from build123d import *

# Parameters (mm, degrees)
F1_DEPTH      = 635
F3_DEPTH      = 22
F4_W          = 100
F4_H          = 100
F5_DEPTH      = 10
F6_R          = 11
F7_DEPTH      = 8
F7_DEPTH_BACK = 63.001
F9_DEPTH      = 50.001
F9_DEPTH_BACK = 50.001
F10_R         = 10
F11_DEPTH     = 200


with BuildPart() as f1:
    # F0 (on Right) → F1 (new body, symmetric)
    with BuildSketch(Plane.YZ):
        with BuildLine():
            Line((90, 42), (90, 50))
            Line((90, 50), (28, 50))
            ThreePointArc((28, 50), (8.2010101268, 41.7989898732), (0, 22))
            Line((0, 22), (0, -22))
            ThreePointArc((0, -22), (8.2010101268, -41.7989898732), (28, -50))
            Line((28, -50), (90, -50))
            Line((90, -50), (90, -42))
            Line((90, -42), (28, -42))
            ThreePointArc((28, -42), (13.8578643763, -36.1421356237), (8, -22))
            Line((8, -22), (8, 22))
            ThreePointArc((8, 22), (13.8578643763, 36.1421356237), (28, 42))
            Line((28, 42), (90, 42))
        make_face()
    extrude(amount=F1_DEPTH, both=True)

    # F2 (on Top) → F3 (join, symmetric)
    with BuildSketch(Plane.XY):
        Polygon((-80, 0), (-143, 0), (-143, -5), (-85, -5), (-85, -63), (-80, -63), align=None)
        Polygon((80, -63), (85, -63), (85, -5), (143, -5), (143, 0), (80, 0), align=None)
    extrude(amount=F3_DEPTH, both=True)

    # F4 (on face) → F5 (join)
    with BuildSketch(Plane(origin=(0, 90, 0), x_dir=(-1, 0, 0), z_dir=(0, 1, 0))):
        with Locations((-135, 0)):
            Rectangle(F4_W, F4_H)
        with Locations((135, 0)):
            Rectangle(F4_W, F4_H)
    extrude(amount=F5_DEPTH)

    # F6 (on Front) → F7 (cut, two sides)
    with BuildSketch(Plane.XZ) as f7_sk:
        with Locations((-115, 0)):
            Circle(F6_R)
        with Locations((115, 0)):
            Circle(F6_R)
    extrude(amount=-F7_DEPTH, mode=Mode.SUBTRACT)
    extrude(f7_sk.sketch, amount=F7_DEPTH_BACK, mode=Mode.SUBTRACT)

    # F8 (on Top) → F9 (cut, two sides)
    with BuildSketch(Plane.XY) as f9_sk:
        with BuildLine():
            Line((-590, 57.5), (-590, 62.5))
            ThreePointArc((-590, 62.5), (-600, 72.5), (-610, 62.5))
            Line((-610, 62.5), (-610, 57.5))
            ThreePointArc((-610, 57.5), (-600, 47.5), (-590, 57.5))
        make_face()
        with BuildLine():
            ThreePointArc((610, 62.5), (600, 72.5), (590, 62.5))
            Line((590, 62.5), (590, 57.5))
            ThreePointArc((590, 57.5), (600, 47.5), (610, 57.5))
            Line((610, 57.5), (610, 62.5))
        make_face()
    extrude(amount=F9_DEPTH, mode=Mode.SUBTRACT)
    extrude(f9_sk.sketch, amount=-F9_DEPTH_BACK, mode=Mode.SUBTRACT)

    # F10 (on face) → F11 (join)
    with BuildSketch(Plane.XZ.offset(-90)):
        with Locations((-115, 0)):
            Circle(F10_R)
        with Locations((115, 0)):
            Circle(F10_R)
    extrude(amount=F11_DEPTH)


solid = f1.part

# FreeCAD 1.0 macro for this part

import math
import FreeCAD as App
import Part
import Sketcher
from FreeCAD import Vector

doc = App.newDocument("Part")
body = doc.addObject("PartDesign::Body", "Body")

# Sketch on YZ plane
sketch1 = body.newObject("Sketcher::SketchObject", "Sketch")
sketch1.AttachmentSupport = (doc.getObject("YZ_Plane"), [""])
sketch1.MapMode = "FlatFace"
sketch1.addGeometry([
    Part.LineSegment(Vector(90, 42, 0), Vector(90, 50, 0)),  # 0
    Part.LineSegment(Vector(90, 50, 0), Vector(28, 50, 0)),  # 1
    Part.ArcOfCircle(Part.Circle(Vector(28, 22, 0), Vector(0, 0, 1), 28), math.radians(90), math.radians(180)),  # 2
    Part.LineSegment(Vector(0, 22, 0), Vector(0, -22, 0)),  # 3
    Part.ArcOfCircle(Part.Circle(Vector(28, -22, 0), Vector(0, 0, 1), 28), math.radians(180), math.radians(270)),  # 4
    Part.LineSegment(Vector(28, -50, 0), Vector(90, -50, 0)),  # 5
    Part.LineSegment(Vector(90, -50, 0), Vector(90, -42, 0)),  # 6
    Part.LineSegment(Vector(90, -42, 0), Vector(28, -42, 0)),  # 7
    Part.ArcOfCircle(Part.Circle(Vector(28, -22, 0), Vector(0, 0, 1), 20), math.radians(180), math.radians(270)),  # 8
    Part.LineSegment(Vector(8, -22, 0), Vector(8, 22, 0)),  # 9
    Part.ArcOfCircle(Part.Circle(Vector(28, 22, 0), Vector(0, 0, 1), 20), math.radians(90), math.radians(180)),  # 10
    Part.LineSegment(Vector(28, 42, 0), Vector(90, 42, 0)),  # 11
], False)
sketch1.addConstraint([
    Sketcher.Constraint("Coincident", 0, 2, 1, 1),
    Sketcher.Constraint("Tangent", 1, 2, 2, 1),
    Sketcher.Constraint("Tangent", 2, 2, 3, 1),
    Sketcher.Constraint("Tangent", 3, 2, 4, 1),
    Sketcher.Constraint("Tangent", 4, 2, 5, 1),
    Sketcher.Constraint("Coincident", 5, 2, 6, 1),
    Sketcher.Constraint("Coincident", 6, 2, 7, 1),
    Sketcher.Constraint("Tangent", 7, 2, 8, 2),
    Sketcher.Constraint("Tangent", 8, 1, 9, 1),
    Sketcher.Constraint("Tangent", 9, 2, 10, 2),
    Sketcher.Constraint("Tangent", 10, 1, 11, 1),
    Sketcher.Constraint("Coincident", 11, 2, 0, 1),
    Sketcher.Constraint("Vertical", 0),
    Sketcher.Constraint("Horizontal", 1),
    Sketcher.Constraint("Vertical", 3),
    Sketcher.Constraint("Horizontal", 5),
    Sketcher.Constraint("Vertical", 6),
    Sketcher.Constraint("Horizontal", 7),
    Sketcher.Constraint("Vertical", 9),
    Sketcher.Constraint("Horizontal", 11),
    Sketcher.Constraint("Coincident", 8, 3, 4, 3),
    Sketcher.Constraint("Coincident", 10, 3, 2, 3),
    Sketcher.Constraint("Equal", 2, 4),
    Sketcher.Constraint("Symmetric", 2, 2, 3, 2, -1, 1),
    Sketcher.Constraint("Vertical", 0, 2, 5, 2),
    Sketcher.Constraint("Radius", 2, 28.0),
    Sketcher.Constraint("Radius", 8, 20.0),
    Sketcher.Constraint("DistanceX", 1, 2, 1, 1, 62.0),
    Sketcher.Constraint("DistanceY", 3, 2, 3, 1, 44.0),
])
pad1 = body.newObject("PartDesign::Pad", "Pad")
pad1.Profile = sketch1
pad1.Length = 1270
pad1.Midplane = True

# Sketch on XY plane
sketch2 = body.newObject("Sketcher::SketchObject", "Sketch001")
sketch2.AttachmentSupport = (doc.getObject("XY_Plane"), [""])
sketch2.MapMode = "FlatFace"
sketch2.addGeometry([
    Part.LineSegment(Vector(-80, 0, 0), Vector(-143, 0, 0)),  # 0
    Part.LineSegment(Vector(-143, 0, 0), Vector(-143, -5, 0)),  # 1
    Part.LineSegment(Vector(-143, -5, 0), Vector(-85, -5, 0)),  # 2
    Part.LineSegment(Vector(-85, -5, 0), Vector(-85, -63, 0)),  # 3
    Part.LineSegment(Vector(-85, -63, 0), Vector(-80, -63, 0)),  # 4
    Part.LineSegment(Vector(-80, -63, 0), Vector(-80, 0, 0)),  # 5
    Part.LineSegment(Vector(80, -63, 0), Vector(85, -63, 0)),  # 6
    Part.LineSegment(Vector(85, -63, 0), Vector(85, -5, 0)),  # 7
    Part.LineSegment(Vector(85, -5, 0), Vector(143, -5, 0)),  # 8
    Part.LineSegment(Vector(143, -5, 0), Vector(143, 0, 0)),  # 9
    Part.LineSegment(Vector(143, 0, 0), Vector(80, 0, 0)),  # 10
    Part.LineSegment(Vector(80, 0, 0), Vector(80, -63, 0)),  # 11
], False)
sketch2.addConstraint([
    Sketcher.Constraint("Coincident", 0, 2, 1, 1),
    Sketcher.Constraint("Coincident", 1, 2, 2, 1),
    Sketcher.Constraint("Coincident", 2, 2, 3, 1),
    Sketcher.Constraint("Coincident", 3, 2, 4, 1),
    Sketcher.Constraint("Coincident", 4, 2, 5, 1),
    Sketcher.Constraint("Coincident", 5, 2, 0, 1),
    Sketcher.Constraint("Coincident", 6, 2, 7, 1),
    Sketcher.Constraint("Coincident", 7, 2, 8, 1),
    Sketcher.Constraint("Coincident", 8, 2, 9, 1),
    Sketcher.Constraint("Coincident", 9, 2, 10, 1),
    Sketcher.Constraint("Coincident", 10, 2, 11, 1),
    Sketcher.Constraint("Coincident", 11, 2, 6, 1),
    Sketcher.Constraint("Horizontal", 0),
    Sketcher.Constraint("Vertical", 1),
    Sketcher.Constraint("Horizontal", 2),
    Sketcher.Constraint("Vertical", 3),
    Sketcher.Constraint("Horizontal", 4),
    Sketcher.Constraint("Vertical", 5),
    Sketcher.Constraint("Horizontal", 6),
    Sketcher.Constraint("Vertical", 7),
    Sketcher.Constraint("Horizontal", 8),
    Sketcher.Constraint("Vertical", 9),
    Sketcher.Constraint("Horizontal", 10),
    Sketcher.Constraint("Vertical", 11),
    Sketcher.Constraint("Symmetric", 0, 2, 9, 2, -1, 1),
    Sketcher.Constraint("Symmetric", 3, 2, 6, 2, -2),
    Sketcher.Constraint("Symmetric", 5, 2, 10, 2, -2),
    Sketcher.Constraint("Horizontal", 2, 2, 7, 2),
    Sketcher.Constraint("Equal", 6, 1),
    Sketcher.Constraint("Equal", 8, 3),
    Sketcher.Constraint("DistanceX", 0, 2, 0, 1, 63.0),
    Sketcher.Constraint("DistanceX", 2, 1, 2, 2, 58.0),
    Sketcher.Constraint("DistanceX", 0, 2, -1, 1, 143.0),
])
pad2 = body.newObject("PartDesign::Pad", "Pad001")
pad2.Profile = sketch2
pad2.Length = 44
pad2.Midplane = True

# Sketch on XZ plane
sketch3 = body.newObject("Sketcher::SketchObject", "Sketch002")
sketch3.AttachmentSupport = (doc.getObject("XZ_Plane"), [""])
sketch3.MapMode = "FlatFace"
sketch3.AttachmentOffset = App.Placement(Vector(0, 0, -90), App.Rotation())
sketch3.addGeometry([
    Part.LineSegment(Vector(185, 50, 0), Vector(185, -50, 0)),  # 0
    Part.LineSegment(Vector(185, -50, 0), Vector(85, -50, 0)),  # 1
    Part.LineSegment(Vector(85, -50, 0), Vector(85, 50, 0)),  # 2
    Part.LineSegment(Vector(85, 50, 0), Vector(185, 50, 0)),  # 3
    Part.LineSegment(Vector(-85, 50, 0), Vector(-85, -50, 0)),  # 4
    Part.LineSegment(Vector(-85, -50, 0), Vector(-185, -50, 0)),  # 5
    Part.LineSegment(Vector(-185, -50, 0), Vector(-185, 50, 0)),  # 6
    Part.LineSegment(Vector(-185, 50, 0), Vector(-85, 50, 0)),  # 7
], False)
sketch3.addConstraint([
    Sketcher.Constraint("Coincident", 0, 2, 1, 1),
    Sketcher.Constraint("Coincident", 1, 2, 2, 1),
    Sketcher.Constraint("Coincident", 2, 2, 3, 1),
    Sketcher.Constraint("Coincident", 3, 2, 0, 1),
    Sketcher.Constraint("Coincident", 4, 2, 5, 1),
    Sketcher.Constraint("Coincident", 5, 2, 6, 1),
    Sketcher.Constraint("Coincident", 6, 2, 7, 1),
    Sketcher.Constraint("Coincident", 7, 2, 4, 1),
    Sketcher.Constraint("Vertical", 0),
    Sketcher.Constraint("Horizontal", 1),
    Sketcher.Constraint("Vertical", 2),
    Sketcher.Constraint("Horizontal", 3),
    Sketcher.Constraint("Vertical", 4),
    Sketcher.Constraint("Horizontal", 5),
    Sketcher.Constraint("Vertical", 6),
    Sketcher.Constraint("Horizontal", 7),
    Sketcher.Constraint("Symmetric", 2, 2, 4, 2, -1, 1),
    Sketcher.Constraint("Symmetric", 0, 2, 6, 2, -1, 1),
    Sketcher.Constraint("Horizontal", 1, 2, 4, 2),
    Sketcher.Constraint("Equal", 7, 0),
    Sketcher.Constraint("DistanceX", 1, 2, 1, 1, 100.0),
    Sketcher.Constraint("DistanceX", -1, 1, 0, 2, 185.0),
])
pad3 = body.newObject("PartDesign::Pad", "Pad002")
pad3.Profile = sketch3
pad3.Length = 10
pad3.Reversed = True

# Sketch on XZ plane
sketch4 = body.newObject("Sketcher::SketchObject", "Sketch003")
sketch4.AttachmentSupport = (doc.getObject("XZ_Plane"), [""])
sketch4.MapMode = "FlatFace"
sketch4.addGeometry([
    Part.Circle(Vector(-115, 0, 0), Vector(0, 0, 1), 11),
    Part.Circle(Vector(115, 0, 0), Vector(0, 0, 1), 11),
], False)
sketch4.addConstraint([
    Sketcher.Constraint("Equal", 0, 1),
    Sketcher.Constraint("Symmetric", 0, 3, 1, 3, -1, 1),
    Sketcher.Constraint("PointOnObject", 0, 3, -1),
    Sketcher.Constraint("Diameter", 0, 22.0),
    Sketcher.Constraint("DistanceX", 0, 3, -1, 1, 115.0),
])
pocket1 = body.newObject("PartDesign::Pocket", "Pocket")
pocket1.Profile = sketch4
pocket1.Type = "TwoLengths"
pocket1.Length = 8
pocket1.Length2 = 63.001

# Sketch on XY plane
sketch5 = body.newObject("Sketcher::SketchObject", "Sketch004")
sketch5.AttachmentSupport = (doc.getObject("XY_Plane"), [""])
sketch5.MapMode = "FlatFace"
sketch5.addGeometry([
    Part.LineSegment(Vector(-590, 57.5, 0), Vector(-590, 62.5, 0)),  # 0
    Part.ArcOfCircle(Part.Circle(Vector(-600, 62.5, 0), Vector(0, 0, 1), 10), math.radians(0), math.radians(180)),  # 1
    Part.LineSegment(Vector(-610, 62.5, 0), Vector(-610, 57.5, 0)),  # 2
    Part.ArcOfCircle(Part.Circle(Vector(-600, 57.5, 0), Vector(0, 0, 1), 10), math.radians(180), math.radians(360)),  # 3
    Part.ArcOfCircle(Part.Circle(Vector(600, 62.5, 0), Vector(0, 0, 1), 10), math.radians(0), math.radians(180)),  # 4
    Part.LineSegment(Vector(590, 62.5, 0), Vector(590, 57.5, 0)),  # 5
    Part.ArcOfCircle(Part.Circle(Vector(600, 57.5, 0), Vector(0, 0, 1), 10), math.radians(180), math.radians(360)),  # 6
    Part.LineSegment(Vector(610, 57.5, 0), Vector(610, 62.5, 0)),  # 7
], False)
sketch5.addConstraint([
    Sketcher.Constraint("Tangent", 0, 2, 1, 1),
    Sketcher.Constraint("Tangent", 1, 2, 2, 1),
    Sketcher.Constraint("Tangent", 2, 2, 3, 1),
    Sketcher.Constraint("Tangent", 3, 2, 0, 1),
    Sketcher.Constraint("Tangent", 4, 2, 5, 1),
    Sketcher.Constraint("Tangent", 5, 2, 6, 1),
    Sketcher.Constraint("Tangent", 6, 2, 7, 1),
    Sketcher.Constraint("Tangent", 7, 2, 4, 1),
    Sketcher.Constraint("Vertical", 0),
    Sketcher.Constraint("Vertical", 2),
    Sketcher.Constraint("Vertical", 5),
    Sketcher.Constraint("Vertical", 7),
    Sketcher.Constraint("Equal", 3, 4),
    Sketcher.Constraint("Symmetric", 1, 3, 4, 3, -2),
    Sketcher.Constraint("Horizontal", 3, 3, 6, 3),
    Sketcher.Constraint("Radius", 1, 10.0),
    Sketcher.Constraint("DistanceY", 0, 1, 0, 2, 5.0),
    Sketcher.Constraint("DistanceX", 1, 3, -1, 1, 600.0),
    Sketcher.Constraint("DistanceY", -1, 1, 1, 3, 62.5),
])
pocket2 = body.newObject("PartDesign::Pocket", "Pocket001")
pocket2.Profile = sketch5
pocket2.Type = "ThroughAll"
pocket2.Midplane = True

# Sketch on XZ plane
sketch6 = body.newObject("Sketcher::SketchObject", "Sketch005")
sketch6.AttachmentSupport = (doc.getObject("XZ_Plane"), [""])
sketch6.MapMode = "FlatFace"
sketch6.AttachmentOffset = App.Placement(Vector(0, 0, -90), App.Rotation())
sketch6.addGeometry([
    Part.Circle(Vector(-115, 0, 0), Vector(0, 0, 1), 10),
    Part.Circle(Vector(115, 0, 0), Vector(0, 0, 1), 10),
], False)
sketch6.addConstraint([
    Sketcher.Constraint("Equal", 0, 1),
    Sketcher.Constraint("Symmetric", 0, 3, 1, 3, -1, 1),
    Sketcher.Constraint("PointOnObject", 0, 3, -1),
    Sketcher.Constraint("Diameter", 0, 20.0),
    Sketcher.Constraint("DistanceX", 0, 3, -1, 1, 115.0),
])
pad4 = body.newObject("PartDesign::Pad", "Pad003")
pad4.Profile = sketch6
pad4.Length = 200

doc.recompute()
